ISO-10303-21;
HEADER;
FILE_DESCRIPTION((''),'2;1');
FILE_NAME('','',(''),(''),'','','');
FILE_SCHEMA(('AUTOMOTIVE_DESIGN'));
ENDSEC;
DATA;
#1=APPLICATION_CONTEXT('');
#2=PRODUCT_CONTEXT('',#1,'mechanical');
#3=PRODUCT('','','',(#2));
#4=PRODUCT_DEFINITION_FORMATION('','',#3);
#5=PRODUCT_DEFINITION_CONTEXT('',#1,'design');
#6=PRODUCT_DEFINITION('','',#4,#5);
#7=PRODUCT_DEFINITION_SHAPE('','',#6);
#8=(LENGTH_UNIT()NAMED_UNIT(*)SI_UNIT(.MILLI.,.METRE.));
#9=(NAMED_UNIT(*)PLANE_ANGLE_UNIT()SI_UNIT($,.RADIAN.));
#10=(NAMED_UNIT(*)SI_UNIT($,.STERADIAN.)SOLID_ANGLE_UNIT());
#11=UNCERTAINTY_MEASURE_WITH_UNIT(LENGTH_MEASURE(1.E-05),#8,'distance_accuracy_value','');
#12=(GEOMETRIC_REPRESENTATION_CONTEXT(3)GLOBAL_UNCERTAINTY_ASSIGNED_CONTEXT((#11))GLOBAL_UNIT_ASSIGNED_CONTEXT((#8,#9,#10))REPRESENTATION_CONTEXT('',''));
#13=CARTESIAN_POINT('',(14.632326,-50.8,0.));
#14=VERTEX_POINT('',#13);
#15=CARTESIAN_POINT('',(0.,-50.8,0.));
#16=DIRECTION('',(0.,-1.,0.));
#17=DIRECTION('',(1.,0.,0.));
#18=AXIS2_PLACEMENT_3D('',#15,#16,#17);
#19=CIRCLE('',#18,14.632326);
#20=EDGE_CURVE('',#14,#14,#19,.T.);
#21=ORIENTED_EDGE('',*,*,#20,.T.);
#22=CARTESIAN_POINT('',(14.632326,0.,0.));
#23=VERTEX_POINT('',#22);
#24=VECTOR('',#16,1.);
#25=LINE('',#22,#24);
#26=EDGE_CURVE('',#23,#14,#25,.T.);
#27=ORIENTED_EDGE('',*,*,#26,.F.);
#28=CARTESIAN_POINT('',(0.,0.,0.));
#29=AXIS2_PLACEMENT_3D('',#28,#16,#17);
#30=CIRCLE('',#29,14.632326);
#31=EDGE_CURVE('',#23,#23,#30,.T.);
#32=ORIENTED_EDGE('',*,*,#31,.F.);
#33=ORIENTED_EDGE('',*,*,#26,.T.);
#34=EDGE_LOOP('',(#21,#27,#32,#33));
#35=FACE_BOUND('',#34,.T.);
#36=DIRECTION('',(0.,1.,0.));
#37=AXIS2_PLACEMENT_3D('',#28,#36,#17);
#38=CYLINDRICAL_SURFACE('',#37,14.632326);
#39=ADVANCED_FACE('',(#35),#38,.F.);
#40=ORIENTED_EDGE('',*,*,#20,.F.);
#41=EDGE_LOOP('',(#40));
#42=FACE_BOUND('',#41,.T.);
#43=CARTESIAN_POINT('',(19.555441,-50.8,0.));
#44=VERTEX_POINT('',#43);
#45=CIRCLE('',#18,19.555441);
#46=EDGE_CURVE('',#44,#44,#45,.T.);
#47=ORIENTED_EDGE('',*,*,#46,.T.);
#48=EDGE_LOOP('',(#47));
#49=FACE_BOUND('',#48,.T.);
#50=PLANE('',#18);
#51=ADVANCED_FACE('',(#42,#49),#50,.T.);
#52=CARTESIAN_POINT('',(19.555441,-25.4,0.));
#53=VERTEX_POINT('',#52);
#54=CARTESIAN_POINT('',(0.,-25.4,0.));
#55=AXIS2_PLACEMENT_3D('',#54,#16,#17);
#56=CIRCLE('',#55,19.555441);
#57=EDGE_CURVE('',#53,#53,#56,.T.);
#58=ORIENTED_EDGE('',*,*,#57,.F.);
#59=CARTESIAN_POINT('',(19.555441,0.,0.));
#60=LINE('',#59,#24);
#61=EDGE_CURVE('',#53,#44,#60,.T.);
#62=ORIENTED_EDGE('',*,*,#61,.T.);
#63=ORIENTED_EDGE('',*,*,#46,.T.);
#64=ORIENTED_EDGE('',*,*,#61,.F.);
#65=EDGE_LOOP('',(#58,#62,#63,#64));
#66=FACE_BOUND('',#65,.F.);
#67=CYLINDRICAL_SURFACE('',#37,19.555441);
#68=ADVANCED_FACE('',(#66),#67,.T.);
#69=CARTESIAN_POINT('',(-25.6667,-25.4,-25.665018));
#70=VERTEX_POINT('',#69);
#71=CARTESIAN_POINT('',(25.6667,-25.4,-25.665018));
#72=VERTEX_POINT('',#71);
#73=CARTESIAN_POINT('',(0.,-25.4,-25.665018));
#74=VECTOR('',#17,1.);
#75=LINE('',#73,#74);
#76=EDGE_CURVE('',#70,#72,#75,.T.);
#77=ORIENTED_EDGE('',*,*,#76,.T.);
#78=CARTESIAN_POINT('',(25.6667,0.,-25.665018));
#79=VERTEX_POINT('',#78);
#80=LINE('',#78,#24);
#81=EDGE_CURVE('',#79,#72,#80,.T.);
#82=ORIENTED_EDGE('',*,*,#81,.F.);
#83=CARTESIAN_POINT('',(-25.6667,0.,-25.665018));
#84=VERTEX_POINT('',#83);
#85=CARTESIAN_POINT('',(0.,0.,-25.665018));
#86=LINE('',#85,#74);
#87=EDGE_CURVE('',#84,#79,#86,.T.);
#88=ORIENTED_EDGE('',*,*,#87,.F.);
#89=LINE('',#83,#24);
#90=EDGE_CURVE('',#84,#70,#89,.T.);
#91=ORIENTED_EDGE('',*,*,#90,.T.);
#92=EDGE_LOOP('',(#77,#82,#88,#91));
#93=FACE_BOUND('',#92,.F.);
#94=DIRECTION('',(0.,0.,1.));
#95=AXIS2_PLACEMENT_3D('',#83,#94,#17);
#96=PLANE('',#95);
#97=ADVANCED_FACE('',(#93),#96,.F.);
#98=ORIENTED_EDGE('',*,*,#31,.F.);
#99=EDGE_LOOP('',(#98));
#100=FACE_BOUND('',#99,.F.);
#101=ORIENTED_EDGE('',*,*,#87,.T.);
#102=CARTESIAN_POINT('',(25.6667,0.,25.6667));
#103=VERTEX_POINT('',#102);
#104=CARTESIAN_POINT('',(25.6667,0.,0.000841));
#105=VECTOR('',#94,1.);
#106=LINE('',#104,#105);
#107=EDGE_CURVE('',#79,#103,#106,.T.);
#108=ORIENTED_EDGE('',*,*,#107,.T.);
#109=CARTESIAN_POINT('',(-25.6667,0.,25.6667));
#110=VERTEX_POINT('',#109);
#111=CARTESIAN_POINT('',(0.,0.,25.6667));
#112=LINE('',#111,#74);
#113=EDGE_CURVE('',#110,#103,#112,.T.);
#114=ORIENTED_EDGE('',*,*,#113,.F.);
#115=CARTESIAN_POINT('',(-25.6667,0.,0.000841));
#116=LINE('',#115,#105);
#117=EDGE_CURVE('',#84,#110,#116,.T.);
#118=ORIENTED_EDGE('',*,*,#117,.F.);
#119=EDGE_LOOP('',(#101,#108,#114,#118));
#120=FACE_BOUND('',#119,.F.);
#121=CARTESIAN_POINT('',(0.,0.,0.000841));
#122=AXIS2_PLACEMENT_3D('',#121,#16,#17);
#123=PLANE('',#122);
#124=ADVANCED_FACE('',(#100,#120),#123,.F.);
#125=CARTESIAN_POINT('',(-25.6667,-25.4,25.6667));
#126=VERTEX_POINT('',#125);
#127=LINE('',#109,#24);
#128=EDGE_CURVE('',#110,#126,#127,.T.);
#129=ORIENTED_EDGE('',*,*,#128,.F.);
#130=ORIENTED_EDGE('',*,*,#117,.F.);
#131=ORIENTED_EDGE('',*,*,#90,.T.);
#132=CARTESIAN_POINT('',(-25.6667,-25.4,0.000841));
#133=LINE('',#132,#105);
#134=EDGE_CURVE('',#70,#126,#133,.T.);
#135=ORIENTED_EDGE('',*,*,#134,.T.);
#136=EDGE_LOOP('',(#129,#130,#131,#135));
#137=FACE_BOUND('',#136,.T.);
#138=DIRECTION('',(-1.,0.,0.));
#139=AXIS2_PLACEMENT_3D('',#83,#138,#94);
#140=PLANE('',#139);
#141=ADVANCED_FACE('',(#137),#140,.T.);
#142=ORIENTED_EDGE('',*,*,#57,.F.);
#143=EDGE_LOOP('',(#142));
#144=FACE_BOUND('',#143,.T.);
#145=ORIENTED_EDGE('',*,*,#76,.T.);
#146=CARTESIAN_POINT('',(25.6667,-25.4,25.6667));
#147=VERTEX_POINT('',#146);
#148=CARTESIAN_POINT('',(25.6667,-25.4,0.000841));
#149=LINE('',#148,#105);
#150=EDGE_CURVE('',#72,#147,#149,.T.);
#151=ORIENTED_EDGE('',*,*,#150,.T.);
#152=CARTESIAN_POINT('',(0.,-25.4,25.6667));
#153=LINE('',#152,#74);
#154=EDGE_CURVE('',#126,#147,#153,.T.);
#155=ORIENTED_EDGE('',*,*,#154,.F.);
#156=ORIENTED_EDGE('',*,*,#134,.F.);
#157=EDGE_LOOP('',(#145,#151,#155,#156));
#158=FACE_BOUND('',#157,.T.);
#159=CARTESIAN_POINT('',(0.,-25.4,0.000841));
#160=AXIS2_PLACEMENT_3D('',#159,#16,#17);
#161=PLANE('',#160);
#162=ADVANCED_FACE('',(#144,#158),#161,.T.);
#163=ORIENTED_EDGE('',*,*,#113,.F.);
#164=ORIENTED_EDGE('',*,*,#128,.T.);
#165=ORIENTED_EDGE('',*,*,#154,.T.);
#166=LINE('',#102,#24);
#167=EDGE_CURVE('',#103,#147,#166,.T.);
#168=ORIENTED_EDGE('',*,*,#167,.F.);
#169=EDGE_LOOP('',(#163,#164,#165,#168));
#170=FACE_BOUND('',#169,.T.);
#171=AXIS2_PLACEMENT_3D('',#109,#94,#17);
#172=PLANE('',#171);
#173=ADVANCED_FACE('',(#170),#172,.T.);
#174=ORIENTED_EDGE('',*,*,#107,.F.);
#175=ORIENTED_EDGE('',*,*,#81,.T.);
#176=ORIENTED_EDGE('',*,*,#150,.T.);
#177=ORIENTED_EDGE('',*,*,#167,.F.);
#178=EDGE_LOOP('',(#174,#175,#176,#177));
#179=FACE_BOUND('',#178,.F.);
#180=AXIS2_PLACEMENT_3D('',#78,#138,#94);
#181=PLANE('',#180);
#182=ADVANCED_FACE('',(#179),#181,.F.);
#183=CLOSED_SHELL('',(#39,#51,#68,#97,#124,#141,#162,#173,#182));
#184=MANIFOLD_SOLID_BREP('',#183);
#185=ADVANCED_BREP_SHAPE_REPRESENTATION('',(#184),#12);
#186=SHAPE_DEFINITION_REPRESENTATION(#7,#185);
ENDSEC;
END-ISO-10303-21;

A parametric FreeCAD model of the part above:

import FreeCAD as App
import Part
import Sketcher
from FreeCAD import Vector
Q = App.Units.Quantity


def add_polygon(sketch, points):
    """Adds a closed chain of lines whose ends are joined by coincident constraints."""
    first, n = sketch.GeometryCount, len(points)
    for a, b in zip(points, points[1:] + points[:1]):
        sketch.addGeometry(Part.LineSegment(App.Vector(*a, 0), App.Vector(*b, 0)), False)
    for i in range(n):
        sketch.addConstraint(Sketcher.Constraint("Coincident", first + i, 2, first + (i + 1) % n, 1))

doc = App.newDocument("Part")
body = doc.addObject("PartDesign::Body", "Body")

# Sketch on XZ plane
sketch1 = body.newObject("Sketcher::SketchObject", "Sketch")
sketch1.AttachmentSupport = (doc.getObject("XZ_Plane"), [""])
sketch1.MapMode = "FlatFace"
add_polygon(sketch1, [(-26, 26), (-26, -26), (26, -26), (26, 26)])  # lines 0-3
sketch1.addGeometry(Part.Circle(Vector(0, 0, 0), Vector(0, 0, 1), 20), False)  # 4
sketch1.addConstraint([
    Sketcher.Constraint("Vertical", 0),
    Sketcher.Constraint("Horizontal", 1),
    Sketcher.Constraint("Vertical", 2),
    Sketcher.Constraint("Horizontal", 3),
    Sketcher.Constraint("Coincident", 4, 3, -1, 1),
    Sketcher.Constraint("DistanceX", 1, 1, 1, 2, Q("2.021 in")),
    Sketcher.Constraint("Diameter", 4, Q("39.110882 mm")),
    Sketcher.Constraint("DistanceX", 0, 2, -1, 1, Q("1.0105 in")),
    Sketcher.Constraint("DistanceY", -1, 1, 2, 2, Q("1.0105 in")),
    Sketcher.Constraint("DistanceY", 0, 2, 0, 1, Q("51.331718 mm")),
])
pad1 = body.newObject("PartDesign::Pad", "Pad")
pad1.Profile = sketch1
pad1.Length = Q("1 in")

# Sketch on XZ plane
sketch2 = body.newObject("Sketcher::SketchObject", "Sketch001")
sketch2.AttachmentSupport = (doc.getObject("XZ_Plane"), [""])
sketch2.MapMode = "FlatFace"
sketch2.addGeometry([
    Part.Circle(Vector(0, 0, 0), Vector(0, 0, 1), 20),
    Part.Circle(Vector(0, 0, 0), Vector(0, 0, 1), 15),
], False)
sketch2.addConstraint([
    Sketcher.Constraint("Coincident", 0, 3, -1, 1),
    Sketcher.Constraint("Coincident", 1, 3, -1, 1),
    Sketcher.Constraint("Diameter", 0, Q("39.110882 mm")),
    Sketcher.Constraint("Diameter", 1, Q("29.264652 mm")),
])
pad2 = body.newObject("PartDesign::Pad", "Pad001")
pad2.Profile = sketch2
pad2.Length = Q("2 in")

doc.recompute()
